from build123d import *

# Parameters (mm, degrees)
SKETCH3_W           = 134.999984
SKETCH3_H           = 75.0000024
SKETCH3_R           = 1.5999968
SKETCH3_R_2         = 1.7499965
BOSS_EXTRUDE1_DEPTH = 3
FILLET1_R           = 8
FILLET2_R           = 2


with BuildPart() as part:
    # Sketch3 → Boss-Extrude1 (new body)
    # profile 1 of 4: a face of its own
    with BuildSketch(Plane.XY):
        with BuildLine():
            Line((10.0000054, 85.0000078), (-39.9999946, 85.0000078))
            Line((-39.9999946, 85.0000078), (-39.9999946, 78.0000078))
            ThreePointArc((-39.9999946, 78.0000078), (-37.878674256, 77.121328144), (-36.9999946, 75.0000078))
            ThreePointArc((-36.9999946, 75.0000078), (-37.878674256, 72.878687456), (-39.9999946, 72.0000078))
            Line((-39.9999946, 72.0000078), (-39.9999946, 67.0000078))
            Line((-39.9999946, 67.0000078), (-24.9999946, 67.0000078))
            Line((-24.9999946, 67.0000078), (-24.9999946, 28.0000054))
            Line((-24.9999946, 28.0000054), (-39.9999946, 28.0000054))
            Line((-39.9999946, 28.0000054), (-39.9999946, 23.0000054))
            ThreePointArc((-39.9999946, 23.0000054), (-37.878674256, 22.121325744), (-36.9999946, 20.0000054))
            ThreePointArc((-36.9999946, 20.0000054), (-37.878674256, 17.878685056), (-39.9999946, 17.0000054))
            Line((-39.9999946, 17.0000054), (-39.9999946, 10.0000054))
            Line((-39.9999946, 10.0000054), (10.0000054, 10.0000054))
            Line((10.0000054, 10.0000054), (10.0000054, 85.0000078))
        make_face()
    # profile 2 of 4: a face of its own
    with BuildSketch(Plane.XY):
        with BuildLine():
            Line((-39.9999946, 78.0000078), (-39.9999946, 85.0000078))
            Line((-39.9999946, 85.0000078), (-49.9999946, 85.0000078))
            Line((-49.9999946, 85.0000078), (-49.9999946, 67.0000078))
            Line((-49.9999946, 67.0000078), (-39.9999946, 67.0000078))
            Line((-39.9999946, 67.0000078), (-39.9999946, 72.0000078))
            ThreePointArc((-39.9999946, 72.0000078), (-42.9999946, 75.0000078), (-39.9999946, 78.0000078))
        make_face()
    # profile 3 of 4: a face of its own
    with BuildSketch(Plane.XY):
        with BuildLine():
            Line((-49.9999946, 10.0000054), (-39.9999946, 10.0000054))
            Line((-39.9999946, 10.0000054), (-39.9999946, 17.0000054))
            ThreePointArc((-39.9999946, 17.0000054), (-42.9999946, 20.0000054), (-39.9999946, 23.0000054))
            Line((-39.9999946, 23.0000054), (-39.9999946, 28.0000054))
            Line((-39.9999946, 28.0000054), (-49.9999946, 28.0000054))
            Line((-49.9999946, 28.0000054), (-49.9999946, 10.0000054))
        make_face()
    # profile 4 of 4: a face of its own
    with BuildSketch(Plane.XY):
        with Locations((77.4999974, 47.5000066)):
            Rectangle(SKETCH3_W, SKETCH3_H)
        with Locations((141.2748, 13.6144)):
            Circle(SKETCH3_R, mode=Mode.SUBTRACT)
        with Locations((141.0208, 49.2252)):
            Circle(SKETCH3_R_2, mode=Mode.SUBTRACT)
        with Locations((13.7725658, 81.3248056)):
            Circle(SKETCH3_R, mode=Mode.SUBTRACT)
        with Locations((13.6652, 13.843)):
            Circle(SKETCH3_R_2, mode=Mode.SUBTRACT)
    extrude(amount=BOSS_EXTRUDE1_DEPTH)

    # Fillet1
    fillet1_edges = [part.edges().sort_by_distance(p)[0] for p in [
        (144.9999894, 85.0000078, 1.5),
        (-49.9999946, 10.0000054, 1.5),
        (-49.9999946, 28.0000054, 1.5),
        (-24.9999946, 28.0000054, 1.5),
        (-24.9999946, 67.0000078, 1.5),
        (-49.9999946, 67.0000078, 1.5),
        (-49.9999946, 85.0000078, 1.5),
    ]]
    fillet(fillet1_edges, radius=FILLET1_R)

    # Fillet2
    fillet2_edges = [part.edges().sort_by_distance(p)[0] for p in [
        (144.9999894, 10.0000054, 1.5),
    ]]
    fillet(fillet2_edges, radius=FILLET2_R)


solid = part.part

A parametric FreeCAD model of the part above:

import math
import FreeCAD as App
import Part
import Sketcher
Q = App.Units.Quantity


def edges_at(feature, points):
    """Names of the edges that pass closest to the given points."""
    edges = feature.Shape.Edges
    near = lambda p: min(range(len(edges)), key=lambda i: edges[i].distToShape(Part.Vertex(*p))[0])
    return sorted({f"Edge{near(p) + 1}" for p in points})


def add_polygon(sketch, points):
    """Adds a closed chain of lines whose ends are joined by coincident constraints."""
    first, n = sketch.GeometryCount, len(points)
    for a, b in zip(points, points[1:] + points[:1]):
        sketch.addGeometry(Part.LineSegment(App.Vector(*a, 0), App.Vector(*b, 0)), False)
    for i in range(n):
        sketch.addConstraint(Sketcher.Constraint("Coincident", first + i, 2, first + (i + 1) % n, 1))

doc = App.newDocument("Part")
params = doc.addObject("Spreadsheet::Sheet", "Params")
for row, (alias, value) in enumerate([
    ("sketch1_radius", "3 mm"),
    ("sketch1_width", "25 mm"),
    ("sketch1_height", "18 mm"),
    ("pad1_length", "3 mm"),
    ("fillet_radius", "8 mm"),
    ("fillet2_radius", "2 mm"),
], start=1):
    params.set(f"A{row}", alias)
    params.set(f"B{row}", "=" + value)
    params.setAlias(f"B{row}", alias)

body = doc.addObject("PartDesign::Body", "Body")

# Sketch on XY plane
sketch1 = doc.addObject("Sketcher::SketchObject", "Sketch")
body.addObject(sketch1)
sketch1.AttachmentSupport = (doc.XY_Plane, [""])
sketch1.MapMode = "FlatFace"
add_polygon(sketch1, [(-49.999995, 85.000008), (-49.999995, 67.000008), (-24.999995, 67.000008), (-24.999995, 28.000005), (-49.999995, 28.000005), (-49.999995, 10.000005), (144.999989, 10.000005), (144.999989, 85.000008)])  # lines 0-7
sketch1.addGeometry(Part.ArcOfCircle(Part.Circle(App.Vector(-39.999995, 75.000008, 0), App.Vector(0, 0, 1), 3), math.radians(0), math.radians(90)), False)  # 8
sketch1.addGeometry(Part.ArcOfCircle(Part.Circle(App.Vector(-39.999995, 75.000008, 0), App.Vector(0, 0, 1), 3), math.radians(-90), math.radians(0)), False)  # 9
sketch1.addGeometry(Part.ArcOfCircle(Part.Circle(App.Vector(-39.999995, 75.000008, 0), App.Vector(0, 0, 1), 3), math.radians(90), math.radians(270)), False)  # 10
sketch1.addGeometry(Part.ArcOfCircle(Part.Circle(App.Vector(-39.999995, 20.000005, 0), App.Vector(0, 0, 1), 3), math.radians(0), math.radians(90)), False)  # 11
sketch1.addGeometry(Part.ArcOfCircle(Part.Circle(App.Vector(-39.999995, 20.000005, 0), App.Vector(0, 0, 1), 3), math.radians(-90), math.radians(0)), False)  # 12
sketch1.addGeometry(Part.ArcOfCircle(Part.Circle(App.Vector(-39.999995, 20.000005, 0), App.Vector(0, 0, 1), 3), math.radians(90), math.radians(270)), False)  # 13
sketch1.addGeometry(Part.Circle(App.Vector(141.0208, 49.2252, 0), App.Vector(0, 0, 1), 1.749996), False)  # 14
sketch1.addGeometry(Part.Circle(App.Vector(13.6652, 13.843, 0), App.Vector(0, 0, 1), 1.749996), False)  # 15
sketch1.addGeometry(Part.Circle(App.Vector(141.2748, 13.6144, 0), App.Vector(0, 0, 1), 1.599997), False)  # 16
sketch1.addGeometry(Part.Circle(App.Vector(13.772566, 81.324806, 0), App.Vector(0, 0, 1), 1.599997), False)  # 17
sketch1.addConstraint([
    Sketcher.Constraint("Tangent", 8, 1, 9, 2),
    Sketcher.Constraint("Tangent", 9, 1, 10, 2),
    Sketcher.Constraint("Tangent", 10, 1, 8, 2),
    Sketcher.Constraint("Tangent", 11, 1, 12, 2),
    Sketcher.Constraint("Tangent", 12, 1, 13, 2),
    Sketcher.Constraint("Tangent", 13, 1, 11, 2),
    Sketcher.Constraint("Vertical", 0),
    Sketcher.Constraint("Horizontal", 1),
    Sketcher.Constraint("Vertical", 2),
    Sketcher.Constraint("Horizontal", 3),
    Sketcher.Constraint("Vertical", 4),
    Sketcher.Constraint("Horizontal", 5),
    Sketcher.Constraint("Vertical", 6),
    Sketcher.Constraint("Horizontal", 7),
    Sketcher.Constraint("Equal", 10, 11),
    Sketcher.Constraint("Equal", 14, 15),
    Sketcher.Constraint("Equal", 16, 17),
    Sketcher.Constraint("Horizontal", 10, 3, 8, 1),
    Sketcher.Constraint("Horizontal", 13, 3, 11, 1),
    Sketcher.Constraint("Vertical", 10, 3, 11, 3),
    Sketcher.Constraint("Vertical", 0, 2, 3, 2),
    Sketcher.Constraint("Vertical", 13, 3, 9, 1),
    Sketcher.Constraint("Vertical", 9, 1, 10, 1),
    Sketcher.Constraint("Vertical", 10, 1, 12, 1),
    Sketcher.Constraint("Vertical", 12, 1, 13, 1),
    Sketcher.Constraint("Equal", 0, 4),
    Sketcher.Constraint("Radius", 8, Q("3 mm")),
    Sketcher.Constraint("DistanceX", 1, 1, 1, 2, Q("25 mm")),
    Sketcher.Constraint("DistanceY", 0, 2, 0, 1, Q("18 mm")),
    Sketcher.Constraint("DistanceX", 0, 2, 10, 3, Q("10 mm")),
    Sketcher.Constraint("DistanceY", 0, 2, 10, 3, Q("8 mm")),
    Sketcher.Constraint("DistanceY", 11, 3, 2, 2, Q("8 mm")),
    Sketcher.Constraint("Diameter", 14, Q("3.499993 mm")),
    Sketcher.Constraint("Diameter", 16, Q("3.199994 mm")),
    Sketcher.Constraint("DistanceY", -1, 1, 15, 3, Q("13.843 mm")),
    Sketcher.Constraint("DistanceX", 14, 3, 16, 3, Q("0.254 mm")),
    Sketcher.Constraint("DistanceX", -1, 1, 14, 3, Q("141.0208 mm")),
    Sketcher.Constraint("DistanceY", -1, 1, 14, 3, Q("49.2252 mm")),
    Sketcher.Constraint("DistanceX", -1, 1, 15, 3, Q("13.6652 mm")),
    Sketcher.Constraint("DistanceY", -1, 1, 16, 3, Q("13.6144 mm")),
    Sketcher.Constraint("DistanceY", 11, 3, 17, 3, Q("61.3248 mm")),
    Sketcher.Constraint("DistanceX", 5, 1, 5, 2, Q("194.999984 mm")),
    Sketcher.Constraint("DistanceY", 2, 2, 2, 1, Q("39.000002 mm")),
    Sketcher.Constraint("DistanceX", -1, 1, 5, 2, Q("144.999989 mm")),
    Sketcher.Constraint("DistanceX", 8, 3, 17, 3, Q("53.77256 mm")),
    Sketcher.Constraint("DistanceY", -1, 1, 8, 3, Q("75.000008 mm")),
])
sketch1.setExpression("Constraints[34]", "Params.sketch1_radius")
sketch1.setExpression("Constraints[35]", "Params.sketch1_width")
sketch1.setExpression("Constraints[36]", "Params.sketch1_height")
pad1 = doc.addObject("PartDesign::Pad", "Pad")
body.addObject(pad1)
pad1.Profile = sketch1
pad1.setExpression("Length", "Params.pad1_length")
doc.recompute()

fillet = doc.addObject("PartDesign::Fillet", "Fillet")
body.addObject(fillet)
fillet.Base = (pad1, edges_at(pad1, [
    (145, 85, 1.5),
    (-50, 10, 1.5),
    (-50, 28, 1.5),
    (-25, 28, 1.5),
    (-25, 67, 1.5),
    (-50, 67, 1.5),
    (-50, 85, 1.5),
]))
fillet.setExpression("Radius", "Params.fillet_radius")
doc.recompute()

fillet2 = doc.addObject("PartDesign::Fillet", "Fillet001")
body.addObject(fillet2)
fillet2.Base = (fillet, edges_at(fillet, [(145, 10, 1.5)]))
fillet2.setExpression("Radius", "Params.fillet2_radius")

doc.recompute()
